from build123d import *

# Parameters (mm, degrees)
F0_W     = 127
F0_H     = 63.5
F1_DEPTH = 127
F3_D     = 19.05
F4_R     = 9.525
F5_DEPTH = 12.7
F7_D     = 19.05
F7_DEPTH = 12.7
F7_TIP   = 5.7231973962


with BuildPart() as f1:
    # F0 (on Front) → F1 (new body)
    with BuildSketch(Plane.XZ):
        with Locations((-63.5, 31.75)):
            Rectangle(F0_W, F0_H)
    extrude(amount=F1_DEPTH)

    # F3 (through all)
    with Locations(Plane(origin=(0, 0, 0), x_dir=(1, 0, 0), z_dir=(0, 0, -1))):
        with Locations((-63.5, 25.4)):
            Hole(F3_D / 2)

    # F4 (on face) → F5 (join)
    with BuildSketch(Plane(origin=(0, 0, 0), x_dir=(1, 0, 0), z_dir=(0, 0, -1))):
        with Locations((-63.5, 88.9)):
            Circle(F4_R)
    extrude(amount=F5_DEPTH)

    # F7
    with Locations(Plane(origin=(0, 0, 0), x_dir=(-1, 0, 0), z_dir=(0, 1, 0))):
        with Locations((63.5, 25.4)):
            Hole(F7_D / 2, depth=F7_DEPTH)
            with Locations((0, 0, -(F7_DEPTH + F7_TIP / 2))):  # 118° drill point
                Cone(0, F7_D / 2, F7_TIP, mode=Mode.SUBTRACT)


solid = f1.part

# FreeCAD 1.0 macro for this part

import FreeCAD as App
import Part
import Sketcher
from FreeCAD import Vector
Q = App.Units.Quantity

doc = App.newDocument("Part")
body = doc.addObject("PartDesign::Body", "Body")

# Sketch on XZ plane
sketch1 = body.newObject("Sketcher::SketchObject", "Sketch")
sketch1.AttachmentSupport = (doc.getObject("XZ_Plane"), [""])
sketch1.MapMode = "FlatFace"
sketch1.addGeometry(Part.LineSegment(Vector(-127, 63.5, 0), Vector(-127, 0, 0)), False)
sketch1.addGeometry(Part.LineSegment(Vector(-127, 0, 0), Vector(0, 0, 0)), False)
sketch1.addGeometry(Part.LineSegment(Vector(0, 0, 0), Vector(0, 63.5, 0)), False)
sketch1.addGeometry(Part.LineSegment(Vector(0, 63.5, 0), Vector(-127, 63.5, 0)), False)
sketch1.addConstraint(Sketcher.Constraint("Coincident", 0, 2, 1, 1))
sketch1.addConstraint(Sketcher.Constraint("Coincident", 1, 2, 2, 1))
sketch1.addConstraint(Sketcher.Constraint("Coincident", 2, 2, 3, 1))
sketch1.addConstraint(Sketcher.Constraint("Coincident", 3, 2, 0, 1))
sketch1.addConstraint(Sketcher.Constraint("Vertical", 0))
sketch1.addConstraint(Sketcher.Constraint("Horizontal", 1))
sketch1.addConstraint(Sketcher.Constraint("Vertical", 2))
sketch1.addConstraint(Sketcher.Constraint("Horizontal", 3))
sketch1.addConstraint(Sketcher.Constraint("Coincident", 1, 2, -1, 1))
sketch1.addConstraint(Sketcher.Constraint("DistanceX", 1, 1, 1, 2, Q("5 in")))
sketch1.addConstraint(Sketcher.Constraint("DistanceY", 0, 2, 0, 1, Q("2.5 in")))
pad1 = body.newObject("PartDesign::Pad", "Pad")
pad1.Profile = sketch1
pad1.Length = Q("5 in")

# Sketch on XY plane
sketch2 = body.newObject("Sketcher::SketchObject", "Sketch001")
sketch2.AttachmentSupport = (doc.getObject("XY_Plane"), [""])
sketch2.MapMode = "FlatFace"
sketch2.addGeometry(Part.Circle(Vector(-63.5, -25.4, 0), Vector(0, 0, 1), 9.525), False)
sketch2.addConstraint(Sketcher.Constraint("Diameter", 0, Q("0.75 in")))
sketch2.addConstraint(Sketcher.Constraint("DistanceY", 0, 3, -1, 1, Q("1 in")))
sketch2.addConstraint(Sketcher.Constraint("DistanceX", 0, 3, -1, 1, Q("2.5 in")))
doc.recompute()
hole = body.newObject("PartDesign::Hole", "Hole")
hole.Profile = sketch2
hole.ThreadType = "None"
hole.Diameter = Q("0.75 in")
hole.DepthType = "ThroughAll"
hole.Reversed = True

# Sketch on XY plane
sketch3 = body.newObject("Sketcher::SketchObject", "Sketch002")
sketch3.AttachmentSupport = (doc.getObject("XY_Plane"), [""])
sketch3.MapMode = "FlatFace"
sketch3.addGeometry(Part.Circle(Vector(-63.5, -88.9, 0), Vector(0, 0, 1), 9.525), False)
sketch3.addConstraint(Sketcher.Constraint("Diameter", 0, Q("0.75 in")))
sketch3.addConstraint(Sketcher.Constraint("DistanceX", 0, 3, -1, 1, Q("2.5 in")))
sketch3.addConstraint(Sketcher.Constraint("DistanceY", 0, 3, -1, 1, Q("3.5 in")))
pad2 = body.newObject("PartDesign::Pad", "Pad001")
pad2.Profile = sketch3
pad2.Length = Q("0.5 in")
pad2.Reversed = True

# Sketch on XZ plane
sketch4 = body.newObject("Sketcher::SketchObject", "Sketch003")
sketch4.AttachmentSupport = (doc.getObject("XZ_Plane"), [""])
sketch4.MapMode = "FlatFace"
sketch4.addGeometry(Part.Circle(Vector(-63.5, 25.4, 0), Vector(0, 0, 1), 9.525), False)
sketch4.addConstraint(Sketcher.Constraint("Diameter", 0, Q("0.75 in")))
sketch4.addConstraint(Sketcher.Constraint("DistanceY", -1, 1, 0, 3, Q("1 in")))
sketch4.addConstraint(Sketcher.Constraint("DistanceX", 0, 3, -1, 1, Q("2.5 in")))
doc.recompute()
hole2 = body.newObject("PartDesign::Hole", "Hole001")
hole2.Profile = sketch4
hole2.ThreadType = "None"
hole2.Diameter = Q("0.75 in")
hole2.DepthType = "Dimension"
hole2.Depth = Q("0.5 in")
hole2.DrillPoint = "Angled"
hole2.DrillPointAngle = 118
hole2.Reversed = True

doc.recompute()
